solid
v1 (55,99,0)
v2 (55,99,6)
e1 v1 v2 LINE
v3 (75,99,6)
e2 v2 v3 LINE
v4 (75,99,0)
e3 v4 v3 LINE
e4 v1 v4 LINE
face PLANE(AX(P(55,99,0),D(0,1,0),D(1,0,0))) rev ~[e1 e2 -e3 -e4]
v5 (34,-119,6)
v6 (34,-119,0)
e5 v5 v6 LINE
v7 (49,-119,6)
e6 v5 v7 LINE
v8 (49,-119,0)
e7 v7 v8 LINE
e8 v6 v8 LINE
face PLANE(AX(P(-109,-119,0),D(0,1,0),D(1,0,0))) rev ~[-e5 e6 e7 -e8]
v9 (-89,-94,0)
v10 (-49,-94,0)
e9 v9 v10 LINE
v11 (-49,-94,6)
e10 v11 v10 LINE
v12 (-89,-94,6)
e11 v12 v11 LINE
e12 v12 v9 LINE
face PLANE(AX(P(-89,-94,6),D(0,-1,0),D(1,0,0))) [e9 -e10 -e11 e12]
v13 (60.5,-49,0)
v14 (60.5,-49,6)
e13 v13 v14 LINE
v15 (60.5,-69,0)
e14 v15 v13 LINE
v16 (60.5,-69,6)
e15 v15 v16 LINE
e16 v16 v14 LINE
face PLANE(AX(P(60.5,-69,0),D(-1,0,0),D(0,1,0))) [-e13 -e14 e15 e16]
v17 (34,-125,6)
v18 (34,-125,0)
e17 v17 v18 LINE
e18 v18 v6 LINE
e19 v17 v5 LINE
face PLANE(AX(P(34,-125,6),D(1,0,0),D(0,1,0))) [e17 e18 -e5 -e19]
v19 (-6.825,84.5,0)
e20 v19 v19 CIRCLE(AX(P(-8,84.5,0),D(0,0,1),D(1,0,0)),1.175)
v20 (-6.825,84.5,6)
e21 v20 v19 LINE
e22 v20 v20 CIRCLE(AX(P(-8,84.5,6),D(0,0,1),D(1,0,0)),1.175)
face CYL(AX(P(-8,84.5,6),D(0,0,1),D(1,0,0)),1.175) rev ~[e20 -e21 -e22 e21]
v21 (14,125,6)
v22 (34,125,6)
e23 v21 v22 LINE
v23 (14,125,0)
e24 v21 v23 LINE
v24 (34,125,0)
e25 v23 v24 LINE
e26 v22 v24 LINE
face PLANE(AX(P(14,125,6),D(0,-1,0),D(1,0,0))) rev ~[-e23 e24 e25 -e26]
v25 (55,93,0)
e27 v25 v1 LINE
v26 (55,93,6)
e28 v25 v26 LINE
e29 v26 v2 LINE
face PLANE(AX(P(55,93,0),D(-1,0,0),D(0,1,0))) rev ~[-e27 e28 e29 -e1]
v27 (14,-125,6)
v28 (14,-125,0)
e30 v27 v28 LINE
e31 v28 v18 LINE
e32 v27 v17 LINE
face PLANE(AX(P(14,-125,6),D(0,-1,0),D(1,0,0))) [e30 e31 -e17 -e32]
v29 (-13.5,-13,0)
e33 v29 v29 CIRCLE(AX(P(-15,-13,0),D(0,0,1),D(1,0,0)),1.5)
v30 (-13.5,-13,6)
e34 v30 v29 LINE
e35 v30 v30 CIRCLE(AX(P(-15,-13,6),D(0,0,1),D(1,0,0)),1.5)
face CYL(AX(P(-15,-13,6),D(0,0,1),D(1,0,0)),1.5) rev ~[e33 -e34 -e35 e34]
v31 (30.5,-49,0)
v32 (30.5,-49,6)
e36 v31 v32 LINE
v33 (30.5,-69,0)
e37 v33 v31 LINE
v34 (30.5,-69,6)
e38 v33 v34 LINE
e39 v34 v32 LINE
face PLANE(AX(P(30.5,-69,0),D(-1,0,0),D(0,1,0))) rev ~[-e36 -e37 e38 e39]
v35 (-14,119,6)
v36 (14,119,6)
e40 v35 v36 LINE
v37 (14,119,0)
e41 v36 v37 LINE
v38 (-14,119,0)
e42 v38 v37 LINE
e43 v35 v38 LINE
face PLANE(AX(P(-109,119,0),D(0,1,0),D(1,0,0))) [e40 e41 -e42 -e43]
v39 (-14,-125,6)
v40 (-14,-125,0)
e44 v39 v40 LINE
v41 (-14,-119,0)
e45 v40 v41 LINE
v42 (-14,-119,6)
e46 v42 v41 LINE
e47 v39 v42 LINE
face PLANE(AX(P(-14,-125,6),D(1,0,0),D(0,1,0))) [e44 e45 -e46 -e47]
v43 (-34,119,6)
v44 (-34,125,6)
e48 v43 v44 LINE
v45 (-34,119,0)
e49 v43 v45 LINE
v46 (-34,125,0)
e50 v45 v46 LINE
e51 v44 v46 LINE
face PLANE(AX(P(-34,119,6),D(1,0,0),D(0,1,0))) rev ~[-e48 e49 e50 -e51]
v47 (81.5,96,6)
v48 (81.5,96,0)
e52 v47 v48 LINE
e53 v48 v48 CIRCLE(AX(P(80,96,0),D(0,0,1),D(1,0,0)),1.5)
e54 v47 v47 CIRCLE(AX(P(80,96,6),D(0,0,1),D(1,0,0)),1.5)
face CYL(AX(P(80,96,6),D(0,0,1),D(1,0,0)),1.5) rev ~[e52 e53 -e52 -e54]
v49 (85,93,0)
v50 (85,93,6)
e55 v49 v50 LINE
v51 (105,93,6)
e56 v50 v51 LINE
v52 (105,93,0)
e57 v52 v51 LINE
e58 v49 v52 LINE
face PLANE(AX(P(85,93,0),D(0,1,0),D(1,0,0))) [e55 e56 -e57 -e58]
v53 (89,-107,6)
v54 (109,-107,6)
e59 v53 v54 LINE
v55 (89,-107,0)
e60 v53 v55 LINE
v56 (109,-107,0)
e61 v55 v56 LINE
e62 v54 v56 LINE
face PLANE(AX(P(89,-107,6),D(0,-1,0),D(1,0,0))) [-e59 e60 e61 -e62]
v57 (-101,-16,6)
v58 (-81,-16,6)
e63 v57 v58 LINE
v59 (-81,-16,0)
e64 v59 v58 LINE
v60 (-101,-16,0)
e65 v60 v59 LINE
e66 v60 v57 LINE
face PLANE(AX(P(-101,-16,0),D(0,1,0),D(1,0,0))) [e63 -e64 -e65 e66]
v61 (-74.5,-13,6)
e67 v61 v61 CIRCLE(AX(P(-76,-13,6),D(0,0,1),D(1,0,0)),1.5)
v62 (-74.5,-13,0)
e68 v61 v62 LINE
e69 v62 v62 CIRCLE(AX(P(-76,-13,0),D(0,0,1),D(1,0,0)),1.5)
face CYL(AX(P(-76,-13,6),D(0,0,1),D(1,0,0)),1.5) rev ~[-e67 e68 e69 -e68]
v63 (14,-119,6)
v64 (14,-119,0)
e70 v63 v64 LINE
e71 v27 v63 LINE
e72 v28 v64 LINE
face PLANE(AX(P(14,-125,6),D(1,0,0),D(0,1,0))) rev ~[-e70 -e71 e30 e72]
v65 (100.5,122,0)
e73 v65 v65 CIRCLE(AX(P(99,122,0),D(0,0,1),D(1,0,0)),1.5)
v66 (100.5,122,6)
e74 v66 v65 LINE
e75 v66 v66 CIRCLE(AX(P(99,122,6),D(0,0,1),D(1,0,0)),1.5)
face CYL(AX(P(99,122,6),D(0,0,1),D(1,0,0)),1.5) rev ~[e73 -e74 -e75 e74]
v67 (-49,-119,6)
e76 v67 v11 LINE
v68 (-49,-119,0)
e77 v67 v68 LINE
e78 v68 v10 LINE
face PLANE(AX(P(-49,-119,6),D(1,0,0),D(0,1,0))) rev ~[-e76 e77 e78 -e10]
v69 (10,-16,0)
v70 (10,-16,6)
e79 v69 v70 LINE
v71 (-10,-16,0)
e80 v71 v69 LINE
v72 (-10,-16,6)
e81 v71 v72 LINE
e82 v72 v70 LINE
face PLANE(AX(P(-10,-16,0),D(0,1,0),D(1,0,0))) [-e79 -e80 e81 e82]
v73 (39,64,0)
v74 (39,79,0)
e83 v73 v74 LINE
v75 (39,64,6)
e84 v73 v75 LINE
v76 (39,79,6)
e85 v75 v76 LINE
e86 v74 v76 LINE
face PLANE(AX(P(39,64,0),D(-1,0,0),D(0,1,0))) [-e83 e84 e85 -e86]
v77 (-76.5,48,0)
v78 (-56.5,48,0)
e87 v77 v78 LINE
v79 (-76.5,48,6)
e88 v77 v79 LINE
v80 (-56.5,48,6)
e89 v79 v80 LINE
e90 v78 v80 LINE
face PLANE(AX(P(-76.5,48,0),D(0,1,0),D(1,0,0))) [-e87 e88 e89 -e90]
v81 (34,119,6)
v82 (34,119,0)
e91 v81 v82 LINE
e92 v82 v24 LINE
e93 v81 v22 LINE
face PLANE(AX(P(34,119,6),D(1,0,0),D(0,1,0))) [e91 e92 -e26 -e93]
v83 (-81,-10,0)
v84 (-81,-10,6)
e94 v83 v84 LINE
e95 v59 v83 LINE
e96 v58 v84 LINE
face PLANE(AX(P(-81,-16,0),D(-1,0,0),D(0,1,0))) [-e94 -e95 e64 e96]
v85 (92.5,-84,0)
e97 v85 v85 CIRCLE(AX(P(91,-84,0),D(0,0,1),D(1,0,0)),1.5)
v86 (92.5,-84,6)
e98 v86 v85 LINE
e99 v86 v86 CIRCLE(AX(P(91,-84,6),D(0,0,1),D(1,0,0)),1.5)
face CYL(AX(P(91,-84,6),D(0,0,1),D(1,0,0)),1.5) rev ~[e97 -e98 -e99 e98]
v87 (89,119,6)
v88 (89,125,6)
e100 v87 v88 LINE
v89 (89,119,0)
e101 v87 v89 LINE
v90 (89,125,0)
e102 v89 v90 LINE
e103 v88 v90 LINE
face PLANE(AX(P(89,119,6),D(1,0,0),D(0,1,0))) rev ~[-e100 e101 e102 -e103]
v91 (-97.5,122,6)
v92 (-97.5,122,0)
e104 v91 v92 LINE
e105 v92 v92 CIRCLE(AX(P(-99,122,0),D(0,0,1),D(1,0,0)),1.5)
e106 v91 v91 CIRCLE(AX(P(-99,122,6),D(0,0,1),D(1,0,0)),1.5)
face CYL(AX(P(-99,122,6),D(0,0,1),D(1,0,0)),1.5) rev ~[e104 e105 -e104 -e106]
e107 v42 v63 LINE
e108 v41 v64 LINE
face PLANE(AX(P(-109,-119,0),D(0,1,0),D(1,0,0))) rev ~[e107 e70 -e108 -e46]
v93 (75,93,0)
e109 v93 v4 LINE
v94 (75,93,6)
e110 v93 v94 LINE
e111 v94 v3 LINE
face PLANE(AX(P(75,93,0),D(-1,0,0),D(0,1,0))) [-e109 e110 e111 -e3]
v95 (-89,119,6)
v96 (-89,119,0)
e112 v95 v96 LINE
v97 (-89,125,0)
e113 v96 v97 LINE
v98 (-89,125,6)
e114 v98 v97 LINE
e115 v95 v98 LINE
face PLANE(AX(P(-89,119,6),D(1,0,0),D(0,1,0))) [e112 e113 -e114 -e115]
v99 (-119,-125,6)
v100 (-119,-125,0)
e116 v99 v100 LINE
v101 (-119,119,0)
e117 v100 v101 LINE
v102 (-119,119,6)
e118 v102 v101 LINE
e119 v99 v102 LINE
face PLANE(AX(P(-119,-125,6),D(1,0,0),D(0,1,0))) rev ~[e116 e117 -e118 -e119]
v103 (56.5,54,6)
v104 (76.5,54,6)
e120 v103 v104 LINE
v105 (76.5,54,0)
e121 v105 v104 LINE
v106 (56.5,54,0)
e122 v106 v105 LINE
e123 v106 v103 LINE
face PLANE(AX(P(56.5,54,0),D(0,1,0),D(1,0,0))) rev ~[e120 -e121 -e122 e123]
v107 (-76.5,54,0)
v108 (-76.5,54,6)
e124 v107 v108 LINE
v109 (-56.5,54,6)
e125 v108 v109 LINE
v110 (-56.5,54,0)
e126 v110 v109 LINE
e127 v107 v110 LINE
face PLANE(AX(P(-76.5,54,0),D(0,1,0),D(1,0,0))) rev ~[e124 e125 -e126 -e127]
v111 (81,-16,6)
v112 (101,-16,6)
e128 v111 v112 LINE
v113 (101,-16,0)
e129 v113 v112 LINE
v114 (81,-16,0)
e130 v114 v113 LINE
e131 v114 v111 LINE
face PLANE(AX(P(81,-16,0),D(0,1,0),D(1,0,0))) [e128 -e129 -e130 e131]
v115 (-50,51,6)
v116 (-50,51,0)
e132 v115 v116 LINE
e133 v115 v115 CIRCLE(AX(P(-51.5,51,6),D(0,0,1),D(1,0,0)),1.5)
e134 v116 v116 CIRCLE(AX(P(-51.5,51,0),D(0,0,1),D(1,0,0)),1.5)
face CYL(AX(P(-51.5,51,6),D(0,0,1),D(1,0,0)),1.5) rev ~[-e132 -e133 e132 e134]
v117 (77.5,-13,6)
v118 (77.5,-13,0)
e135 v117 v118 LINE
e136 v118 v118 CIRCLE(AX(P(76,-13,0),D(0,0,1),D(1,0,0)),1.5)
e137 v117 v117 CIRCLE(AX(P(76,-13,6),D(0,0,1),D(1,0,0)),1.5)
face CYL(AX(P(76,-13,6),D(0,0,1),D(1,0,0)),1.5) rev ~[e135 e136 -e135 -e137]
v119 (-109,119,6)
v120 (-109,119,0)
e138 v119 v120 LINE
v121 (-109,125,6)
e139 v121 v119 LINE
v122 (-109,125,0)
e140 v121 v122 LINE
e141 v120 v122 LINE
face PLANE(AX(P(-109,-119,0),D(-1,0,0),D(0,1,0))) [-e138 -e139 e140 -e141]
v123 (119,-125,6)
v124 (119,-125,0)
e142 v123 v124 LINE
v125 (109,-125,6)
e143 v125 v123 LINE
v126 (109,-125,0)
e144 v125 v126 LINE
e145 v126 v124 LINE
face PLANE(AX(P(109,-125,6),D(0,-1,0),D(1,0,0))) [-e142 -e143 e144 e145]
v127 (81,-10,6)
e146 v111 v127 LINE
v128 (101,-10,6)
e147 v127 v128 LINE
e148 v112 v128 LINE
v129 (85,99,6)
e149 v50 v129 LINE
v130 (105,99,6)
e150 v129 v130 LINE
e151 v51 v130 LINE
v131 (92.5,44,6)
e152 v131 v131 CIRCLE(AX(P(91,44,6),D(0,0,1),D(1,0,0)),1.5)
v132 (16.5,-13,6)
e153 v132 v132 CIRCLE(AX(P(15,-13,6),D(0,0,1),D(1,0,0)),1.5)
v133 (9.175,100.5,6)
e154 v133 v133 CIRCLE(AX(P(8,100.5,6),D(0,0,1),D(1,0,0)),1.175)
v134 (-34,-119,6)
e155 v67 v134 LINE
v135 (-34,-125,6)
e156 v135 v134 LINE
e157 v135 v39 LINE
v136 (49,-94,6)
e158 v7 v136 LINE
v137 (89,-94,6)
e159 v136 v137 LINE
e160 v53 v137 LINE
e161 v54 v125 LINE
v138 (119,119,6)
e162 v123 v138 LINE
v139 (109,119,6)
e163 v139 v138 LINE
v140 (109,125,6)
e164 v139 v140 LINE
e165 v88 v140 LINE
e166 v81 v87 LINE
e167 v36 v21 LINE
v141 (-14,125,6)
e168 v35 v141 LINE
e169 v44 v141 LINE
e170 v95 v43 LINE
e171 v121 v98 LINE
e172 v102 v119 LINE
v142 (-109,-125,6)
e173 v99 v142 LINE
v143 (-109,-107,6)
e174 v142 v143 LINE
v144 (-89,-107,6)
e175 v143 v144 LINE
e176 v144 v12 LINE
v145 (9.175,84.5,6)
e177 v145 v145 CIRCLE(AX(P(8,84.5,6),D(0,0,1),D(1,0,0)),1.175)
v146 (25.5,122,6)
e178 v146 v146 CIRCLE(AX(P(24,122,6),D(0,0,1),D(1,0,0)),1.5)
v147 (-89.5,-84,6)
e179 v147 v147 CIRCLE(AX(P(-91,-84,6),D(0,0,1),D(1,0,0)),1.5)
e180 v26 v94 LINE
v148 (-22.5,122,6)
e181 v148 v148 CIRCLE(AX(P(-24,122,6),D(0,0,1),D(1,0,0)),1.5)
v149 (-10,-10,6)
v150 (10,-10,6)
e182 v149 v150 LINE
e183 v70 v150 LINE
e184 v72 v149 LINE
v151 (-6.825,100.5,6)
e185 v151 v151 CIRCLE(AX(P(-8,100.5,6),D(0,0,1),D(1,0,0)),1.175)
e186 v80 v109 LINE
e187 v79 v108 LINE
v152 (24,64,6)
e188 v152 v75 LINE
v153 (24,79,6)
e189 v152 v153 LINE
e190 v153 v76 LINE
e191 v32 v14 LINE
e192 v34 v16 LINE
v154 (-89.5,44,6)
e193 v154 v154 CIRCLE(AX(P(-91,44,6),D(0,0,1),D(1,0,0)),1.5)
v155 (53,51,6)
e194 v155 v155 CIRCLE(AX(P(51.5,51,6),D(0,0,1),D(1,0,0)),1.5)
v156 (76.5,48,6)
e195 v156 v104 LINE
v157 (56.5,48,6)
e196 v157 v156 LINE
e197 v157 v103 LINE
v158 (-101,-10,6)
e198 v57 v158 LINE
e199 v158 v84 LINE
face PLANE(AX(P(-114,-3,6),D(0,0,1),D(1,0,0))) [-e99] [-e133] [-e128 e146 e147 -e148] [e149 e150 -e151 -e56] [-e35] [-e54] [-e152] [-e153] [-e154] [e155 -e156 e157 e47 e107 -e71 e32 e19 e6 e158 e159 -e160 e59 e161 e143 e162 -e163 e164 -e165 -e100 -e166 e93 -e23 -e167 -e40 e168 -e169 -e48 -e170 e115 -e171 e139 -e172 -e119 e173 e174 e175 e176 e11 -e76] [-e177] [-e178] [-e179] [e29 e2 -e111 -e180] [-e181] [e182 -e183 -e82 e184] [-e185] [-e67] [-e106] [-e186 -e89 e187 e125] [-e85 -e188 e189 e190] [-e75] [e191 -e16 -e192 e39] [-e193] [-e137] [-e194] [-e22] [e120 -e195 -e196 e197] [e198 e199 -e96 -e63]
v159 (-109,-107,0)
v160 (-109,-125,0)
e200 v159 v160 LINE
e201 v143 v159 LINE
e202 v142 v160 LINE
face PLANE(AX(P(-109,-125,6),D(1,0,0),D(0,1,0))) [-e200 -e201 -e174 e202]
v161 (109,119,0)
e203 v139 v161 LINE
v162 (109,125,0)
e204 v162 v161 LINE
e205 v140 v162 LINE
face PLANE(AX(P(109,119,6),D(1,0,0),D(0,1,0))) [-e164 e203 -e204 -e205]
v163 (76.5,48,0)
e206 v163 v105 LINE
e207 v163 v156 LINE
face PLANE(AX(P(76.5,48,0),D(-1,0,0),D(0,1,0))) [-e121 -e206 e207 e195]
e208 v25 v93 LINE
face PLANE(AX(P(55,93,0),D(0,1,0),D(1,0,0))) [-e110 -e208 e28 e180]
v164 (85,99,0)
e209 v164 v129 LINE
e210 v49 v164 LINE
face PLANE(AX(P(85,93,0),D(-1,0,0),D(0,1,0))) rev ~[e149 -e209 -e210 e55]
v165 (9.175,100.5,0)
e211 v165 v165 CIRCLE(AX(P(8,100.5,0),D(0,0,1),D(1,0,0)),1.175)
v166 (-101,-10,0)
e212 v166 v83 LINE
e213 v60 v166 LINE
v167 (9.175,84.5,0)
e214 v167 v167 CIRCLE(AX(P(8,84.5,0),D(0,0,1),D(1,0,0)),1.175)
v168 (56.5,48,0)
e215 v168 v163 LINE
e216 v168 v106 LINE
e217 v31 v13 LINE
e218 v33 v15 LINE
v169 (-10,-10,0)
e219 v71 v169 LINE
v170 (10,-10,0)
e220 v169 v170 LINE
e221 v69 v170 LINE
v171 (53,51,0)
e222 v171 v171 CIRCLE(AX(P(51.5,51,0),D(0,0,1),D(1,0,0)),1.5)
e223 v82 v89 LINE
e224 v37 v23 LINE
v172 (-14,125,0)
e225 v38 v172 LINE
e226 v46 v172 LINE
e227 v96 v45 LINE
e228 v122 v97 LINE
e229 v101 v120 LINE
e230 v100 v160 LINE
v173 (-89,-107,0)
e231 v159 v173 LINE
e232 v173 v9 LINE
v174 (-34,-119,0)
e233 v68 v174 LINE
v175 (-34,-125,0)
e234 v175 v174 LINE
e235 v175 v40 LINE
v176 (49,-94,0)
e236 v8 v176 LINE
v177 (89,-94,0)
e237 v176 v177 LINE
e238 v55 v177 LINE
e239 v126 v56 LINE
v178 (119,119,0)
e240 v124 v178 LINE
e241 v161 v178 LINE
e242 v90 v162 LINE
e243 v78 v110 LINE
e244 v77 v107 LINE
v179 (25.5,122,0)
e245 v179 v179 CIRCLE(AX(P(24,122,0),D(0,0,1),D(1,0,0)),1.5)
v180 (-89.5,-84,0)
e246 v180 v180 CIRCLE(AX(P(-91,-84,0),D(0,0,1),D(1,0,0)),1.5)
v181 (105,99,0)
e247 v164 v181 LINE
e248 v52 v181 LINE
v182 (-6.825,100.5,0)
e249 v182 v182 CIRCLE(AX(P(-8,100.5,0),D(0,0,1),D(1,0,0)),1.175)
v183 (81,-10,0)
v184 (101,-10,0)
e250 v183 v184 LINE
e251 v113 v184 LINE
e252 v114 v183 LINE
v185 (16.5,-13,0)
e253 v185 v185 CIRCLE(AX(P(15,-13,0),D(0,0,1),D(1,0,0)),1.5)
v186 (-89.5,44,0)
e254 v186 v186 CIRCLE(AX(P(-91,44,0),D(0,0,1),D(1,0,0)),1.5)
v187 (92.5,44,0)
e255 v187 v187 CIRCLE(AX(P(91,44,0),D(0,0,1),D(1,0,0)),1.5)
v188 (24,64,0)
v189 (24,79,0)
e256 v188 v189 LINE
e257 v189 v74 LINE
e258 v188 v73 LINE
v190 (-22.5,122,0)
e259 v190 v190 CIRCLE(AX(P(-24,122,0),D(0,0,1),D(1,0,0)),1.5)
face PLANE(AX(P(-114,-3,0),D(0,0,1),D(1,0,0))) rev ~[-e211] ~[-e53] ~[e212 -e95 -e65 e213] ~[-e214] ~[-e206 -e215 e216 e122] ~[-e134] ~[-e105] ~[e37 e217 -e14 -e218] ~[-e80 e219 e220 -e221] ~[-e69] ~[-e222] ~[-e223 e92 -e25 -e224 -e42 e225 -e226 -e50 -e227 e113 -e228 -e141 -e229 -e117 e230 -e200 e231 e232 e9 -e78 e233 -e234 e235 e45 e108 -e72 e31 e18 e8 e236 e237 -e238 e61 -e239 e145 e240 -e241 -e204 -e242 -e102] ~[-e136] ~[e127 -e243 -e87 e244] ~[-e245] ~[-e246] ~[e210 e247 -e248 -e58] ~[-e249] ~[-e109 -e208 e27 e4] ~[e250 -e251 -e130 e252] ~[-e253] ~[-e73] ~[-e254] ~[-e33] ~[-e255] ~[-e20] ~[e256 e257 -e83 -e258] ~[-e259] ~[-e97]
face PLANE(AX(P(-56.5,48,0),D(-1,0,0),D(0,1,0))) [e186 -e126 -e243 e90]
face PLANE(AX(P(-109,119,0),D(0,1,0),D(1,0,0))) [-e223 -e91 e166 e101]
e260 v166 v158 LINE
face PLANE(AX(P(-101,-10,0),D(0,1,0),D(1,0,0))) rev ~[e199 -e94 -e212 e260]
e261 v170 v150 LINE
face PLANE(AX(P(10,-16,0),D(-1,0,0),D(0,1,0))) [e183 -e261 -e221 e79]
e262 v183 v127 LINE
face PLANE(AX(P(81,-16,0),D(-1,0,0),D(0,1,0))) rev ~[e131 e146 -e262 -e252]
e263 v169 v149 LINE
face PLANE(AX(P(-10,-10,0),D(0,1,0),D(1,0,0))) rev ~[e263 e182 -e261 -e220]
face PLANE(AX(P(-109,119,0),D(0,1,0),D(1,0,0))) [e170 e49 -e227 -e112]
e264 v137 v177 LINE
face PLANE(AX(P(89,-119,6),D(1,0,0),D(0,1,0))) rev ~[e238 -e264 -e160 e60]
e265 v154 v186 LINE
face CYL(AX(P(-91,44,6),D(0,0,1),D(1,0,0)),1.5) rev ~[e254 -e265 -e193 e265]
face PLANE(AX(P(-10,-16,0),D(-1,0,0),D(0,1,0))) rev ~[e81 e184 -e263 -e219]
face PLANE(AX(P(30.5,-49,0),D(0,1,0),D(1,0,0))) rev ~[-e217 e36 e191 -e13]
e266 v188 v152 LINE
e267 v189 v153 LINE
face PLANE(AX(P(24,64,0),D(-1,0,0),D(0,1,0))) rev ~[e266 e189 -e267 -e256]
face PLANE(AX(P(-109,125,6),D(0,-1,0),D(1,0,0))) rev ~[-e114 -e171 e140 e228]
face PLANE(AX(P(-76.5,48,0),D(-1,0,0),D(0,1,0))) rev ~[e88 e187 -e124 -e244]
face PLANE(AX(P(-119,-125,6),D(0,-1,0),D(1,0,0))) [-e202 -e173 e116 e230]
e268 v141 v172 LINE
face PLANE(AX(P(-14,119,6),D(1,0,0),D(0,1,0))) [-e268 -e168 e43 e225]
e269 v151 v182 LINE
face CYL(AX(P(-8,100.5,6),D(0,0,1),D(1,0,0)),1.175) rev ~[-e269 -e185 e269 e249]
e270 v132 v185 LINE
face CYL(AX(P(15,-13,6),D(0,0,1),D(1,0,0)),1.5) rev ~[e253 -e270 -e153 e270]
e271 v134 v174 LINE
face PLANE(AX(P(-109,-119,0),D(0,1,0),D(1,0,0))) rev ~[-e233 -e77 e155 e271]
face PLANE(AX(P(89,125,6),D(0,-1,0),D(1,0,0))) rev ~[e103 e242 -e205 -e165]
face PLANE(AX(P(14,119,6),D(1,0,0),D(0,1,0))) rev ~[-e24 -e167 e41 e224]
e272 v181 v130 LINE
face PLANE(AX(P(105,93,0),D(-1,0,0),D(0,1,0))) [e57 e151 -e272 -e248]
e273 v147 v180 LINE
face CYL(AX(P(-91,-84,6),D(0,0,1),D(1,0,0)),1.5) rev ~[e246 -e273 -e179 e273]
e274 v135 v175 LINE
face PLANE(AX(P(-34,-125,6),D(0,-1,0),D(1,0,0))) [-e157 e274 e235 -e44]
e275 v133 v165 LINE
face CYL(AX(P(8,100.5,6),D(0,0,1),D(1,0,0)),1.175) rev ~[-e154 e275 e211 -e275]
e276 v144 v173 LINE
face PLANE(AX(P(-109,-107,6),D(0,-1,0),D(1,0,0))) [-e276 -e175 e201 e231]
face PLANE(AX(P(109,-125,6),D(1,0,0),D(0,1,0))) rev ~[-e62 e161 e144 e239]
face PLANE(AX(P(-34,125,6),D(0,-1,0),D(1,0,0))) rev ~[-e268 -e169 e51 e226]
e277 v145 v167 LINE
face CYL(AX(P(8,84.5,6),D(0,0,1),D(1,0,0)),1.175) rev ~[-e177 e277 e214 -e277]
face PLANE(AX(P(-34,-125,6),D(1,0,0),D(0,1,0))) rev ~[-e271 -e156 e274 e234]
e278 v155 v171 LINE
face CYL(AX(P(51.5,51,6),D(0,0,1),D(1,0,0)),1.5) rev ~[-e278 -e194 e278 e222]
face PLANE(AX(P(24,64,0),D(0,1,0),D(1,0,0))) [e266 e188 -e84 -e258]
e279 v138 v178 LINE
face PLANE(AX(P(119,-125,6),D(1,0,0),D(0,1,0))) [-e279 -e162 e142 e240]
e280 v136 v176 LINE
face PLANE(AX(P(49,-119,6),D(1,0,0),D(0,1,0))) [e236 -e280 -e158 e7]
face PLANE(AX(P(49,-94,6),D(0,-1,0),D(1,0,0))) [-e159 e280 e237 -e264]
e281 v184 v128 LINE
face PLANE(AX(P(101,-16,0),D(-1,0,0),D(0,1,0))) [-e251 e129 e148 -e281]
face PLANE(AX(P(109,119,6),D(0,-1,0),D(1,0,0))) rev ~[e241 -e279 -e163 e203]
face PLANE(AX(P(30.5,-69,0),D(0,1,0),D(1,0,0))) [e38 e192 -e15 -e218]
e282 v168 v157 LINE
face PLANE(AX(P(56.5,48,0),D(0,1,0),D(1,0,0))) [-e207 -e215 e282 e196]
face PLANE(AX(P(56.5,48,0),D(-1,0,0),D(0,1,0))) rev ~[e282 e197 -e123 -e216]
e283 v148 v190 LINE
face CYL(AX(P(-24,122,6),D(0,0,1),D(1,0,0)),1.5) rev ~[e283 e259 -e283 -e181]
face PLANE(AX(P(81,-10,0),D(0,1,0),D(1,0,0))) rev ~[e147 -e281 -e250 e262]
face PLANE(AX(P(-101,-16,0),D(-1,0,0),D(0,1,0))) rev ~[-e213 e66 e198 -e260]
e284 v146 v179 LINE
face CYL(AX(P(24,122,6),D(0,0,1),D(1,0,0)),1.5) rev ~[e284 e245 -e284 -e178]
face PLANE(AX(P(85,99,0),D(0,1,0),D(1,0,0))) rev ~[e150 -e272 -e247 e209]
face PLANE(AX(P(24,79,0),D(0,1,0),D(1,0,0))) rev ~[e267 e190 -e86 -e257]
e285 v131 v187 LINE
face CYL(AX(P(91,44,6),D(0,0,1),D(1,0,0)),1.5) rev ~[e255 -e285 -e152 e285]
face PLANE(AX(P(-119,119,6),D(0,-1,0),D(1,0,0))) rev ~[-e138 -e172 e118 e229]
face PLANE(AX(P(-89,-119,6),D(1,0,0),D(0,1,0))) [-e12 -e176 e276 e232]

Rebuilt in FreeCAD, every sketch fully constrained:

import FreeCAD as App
import Part
import Sketcher

V = App.Vector

doc = App.newDocument("Part")
body = doc.addObject("PartDesign::Body", "Body")

sketch1 = body.newObject("Sketcher::SketchObject", "Sketch")
sketch1.AttachmentSupport = (doc.getObject("XY_Plane"), [""])
sketch1.MapMode = "FlatFace"
sketch1.addGeometry(Part.LineSegment(V(-109, 119, 0), V(-109, -119, 0)), False)
sketch1.addGeometry(Part.LineSegment(V(-109, -119, 0), V(109, -119, 0)), False)
sketch1.addGeometry(Part.LineSegment(V(109, -119, 0), V(109, 119, 0)), False)
sketch1.addGeometry(Part.LineSegment(V(109, 119, 0), V(-109, 119, 0)), False)
sketch1.addGeometry(Part.LineSegment(V(-81, -16, 0), V(-101, -16, 0)), False)
sketch1.addGeometry(Part.LineSegment(V(-101, -16, 0), V(-101, -10, 0)), False)
sketch1.addGeometry(Part.LineSegment(V(-101, -10, 0), V(-81, -10, 0)), False)
sketch1.addGeometry(Part.LineSegment(V(-81, -10, 0), V(-81, -16, 0)), False)
sketch1.addGeometry(Part.LineSegment(V(10, -16, 0), V(-10, -16, 0)), False)
sketch1.addGeometry(Part.LineSegment(V(-10, -16, 0), V(-10, -10, 0)), False)
sketch1.addGeometry(Part.LineSegment(V(-10, -10, 0), V(10, -10, 0)), False)
sketch1.addGeometry(Part.LineSegment(V(10, -10, 0), V(10, -16, 0)), False)
sketch1.addGeometry(Part.LineSegment(V(60, -69, 0), V(30, -69, 0)), False)
sketch1.addGeometry(Part.LineSegment(V(30, -69, 0), V(30, -49, 0)), False)
sketch1.addGeometry(Part.LineSegment(V(30, -49, 0), V(60, -49, 0)), False)
sketch1.addGeometry(Part.LineSegment(V(60, -49, 0), V(60, -69, 0)), False)
sketch1.addGeometry(Part.LineSegment(V(101, -16, 0), V(81, -16, 0)), False)
sketch1.addGeometry(Part.LineSegment(V(81, -16, 0), V(81, -10, 0)), False)
sketch1.addGeometry(Part.LineSegment(V(81, -10, 0), V(101, -10, 0)), False)
sketch1.addGeometry(Part.LineSegment(V(101, -10, 0), V(101, -16, 0)), False)
sketch1.addGeometry(Part.LineSegment(V(-56, 48, 0), V(-76, 48, 0)), False)
sketch1.addGeometry(Part.LineSegment(V(-76, 48, 0), V(-76, 54, 0)), False)
sketch1.addGeometry(Part.LineSegment(V(-76, 54, 0), V(-56, 54, 0)), False)
sketch1.addGeometry(Part.LineSegment(V(-56, 54, 0), V(-56, 48, 0)), False)
sketch1.addGeometry(Part.LineSegment(V(76, 48, 0), V(56, 48, 0)), False)
sketch1.addGeometry(Part.LineSegment(V(56, 48, 0), V(56, 54, 0)), False)
sketch1.addGeometry(Part.LineSegment(V(56, 54, 0), V(76, 54, 0)), False)
sketch1.addGeometry(Part.LineSegment(V(76, 54, 0), V(76, 48, 0)), False)
sketch1.addGeometry(Part.LineSegment(V(39, 64, 0), V(24, 64, 0)), False)
sketch1.addGeometry(Part.LineSegment(V(24, 64, 0), V(24, 79, 0)), False)
sketch1.addGeometry(Part.LineSegment(V(24, 79, 0), V(39, 79, 0)), False)
sketch1.addGeometry(Part.LineSegment(V(39, 79, 0), V(39, 64, 0)), False)
sketch1.addGeometry(Part.LineSegment(V(75, 93, 0), V(55, 93, 0)), False)
sketch1.addGeometry(Part.LineSegment(V(55, 93, 0), V(55, 99, 0)), False)
sketch1.addGeometry(Part.LineSegment(V(55, 99, 0), V(75, 99, 0)), False)
sketch1.addGeometry(Part.LineSegment(V(75, 99, 0), V(75, 93, 0)), False)
sketch1.addGeometry(Part.LineSegment(V(105, 93, 0), V(85, 93, 0)), False)
sketch1.addGeometry(Part.LineSegment(V(85, 93, 0), V(85, 99, 0)), False)
sketch1.addGeometry(Part.LineSegment(V(85, 99, 0), V(105, 99, 0)), False)
sketch1.addGeometry(Part.LineSegment(V(105, 99, 0), V(105, 93, 0)), False)
sketch1.addConstraint(Sketcher.Constraint("Coincident", 0, 2, 1, 1))
sketch1.addConstraint(Sketcher.Constraint("Coincident", 1, 2, 2, 1))
sketch1.addConstraint(Sketcher.Constraint("Coincident", 2, 2, 3, 1))
sketch1.addConstraint(Sketcher.Constraint("Coincident", 3, 2, 0, 1))
sketch1.addConstraint(Sketcher.Constraint("Coincident", 4, 2, 5, 1))
sketch1.addConstraint(Sketcher.Constraint("Coincident", 5, 2, 6, 1))
sketch1.addConstraint(Sketcher.Constraint("Coincident", 6, 2, 7, 1))
sketch1.addConstraint(Sketcher.Constraint("Coincident", 7, 2, 4, 1))
sketch1.addConstraint(Sketcher.Constraint("Coincident", 8, 2, 9, 1))
sketch1.addConstraint(Sketcher.Constraint("Coincident", 9, 2, 10, 1))
sketch1.addConstraint(Sketcher.Constraint("Coincident", 10, 2, 11, 1))
sketch1.addConstraint(Sketcher.Constraint("Coincident", 11, 2, 8, 1))
sketch1.addConstraint(Sketcher.Constraint("Coincident", 12, 2, 13, 1))
sketch1.addConstraint(Sketcher.Constraint("Coincident", 13, 2, 14, 1))
sketch1.addConstraint(Sketcher.Constraint("Coincident", 14, 2, 15, 1))
sketch1.addConstraint(Sketcher.Constraint("Coincident", 15, 2, 12, 1))
sketch1.addConstraint(Sketcher.Constraint("Coincident", 16, 2, 17, 1))
sketch1.addConstraint(Sketcher.Constraint("Coincident", 17, 2, 18, 1))
sketch1.addConstraint(Sketcher.Constraint("Coincident", 18, 2, 19, 1))
sketch1.addConstraint(Sketcher.Constraint("Coincident", 19, 2, 16, 1))
sketch1.addConstraint(Sketcher.Constraint("Coincident", 20, 2, 21, 1))
sketch1.addConstraint(Sketcher.Constraint("Coincident", 21, 2, 22, 1))
sketch1.addConstraint(Sketcher.Constraint("Coincident", 22, 2, 23, 1))
sketch1.addConstraint(Sketcher.Constraint("Coincident", 23, 2, 20, 1))
sketch1.addConstraint(Sketcher.Constraint("Coincident", 24, 2, 25, 1))
sketch1.addConstraint(Sketcher.Constraint("Coincident", 25, 2, 26, 1))
sketch1.addConstraint(Sketcher.Constraint("Coincident", 26, 2, 27, 1))
sketch1.addConstraint(Sketcher.Constraint("Coincident", 27, 2, 24, 1))
sketch1.addConstraint(Sketcher.Constraint("Coincident", 28, 2, 29, 1))
sketch1.addConstraint(Sketcher.Constraint("Coincident", 29, 2, 30, 1))
sketch1.addConstraint(Sketcher.Constraint("Coincident", 30, 2, 31, 1))
sketch1.addConstraint(Sketcher.Constraint("Coincident", 31, 2, 28, 1))
sketch1.addConstraint(Sketcher.Constraint("Coincident", 32, 2, 33, 1))
sketch1.addConstraint(Sketcher.Constraint("Coincident", 33, 2, 34, 1))
sketch1.addConstraint(Sketcher.Constraint("Coincident", 34, 2, 35, 1))
sketch1.addConstraint(Sketcher.Constraint("Coincident", 35, 2, 32, 1))
sketch1.addConstraint(Sketcher.Constraint("Coincident", 36, 2, 37, 1))
sketch1.addConstraint(Sketcher.Constraint("Coincident", 37, 2, 38, 1))
sketch1.addConstraint(Sketcher.Constraint("Coincident", 38, 2, 39, 1))
sketch1.addConstraint(Sketcher.Constraint("Coincident", 39, 2, 36, 1))
sketch1.addConstraint(Sketcher.Constraint("Vertical", 0))
sketch1.addConstraint(Sketcher.Constraint("Horizontal", 1))
sketch1.addConstraint(Sketcher.Constraint("Vertical", 2))
sketch1.addConstraint(Sketcher.Constraint("Horizontal", 3))
sketch1.addConstraint(Sketcher.Constraint("Horizontal", 4))
sketch1.addConstraint(Sketcher.Constraint("Vertical", 5))
sketch1.addConstraint(Sketcher.Constraint("Horizontal", 6))
sketch1.addConstraint(Sketcher.Constraint("Vertical", 7))
sketch1.addConstraint(Sketcher.Constraint("Horizontal", 8))
sketch1.addConstraint(Sketcher.Constraint("Vertical", 9))
sketch1.addConstraint(Sketcher.Constraint("Horizontal", 10))
sketch1.addConstraint(Sketcher.Constraint("Vertical", 11))
sketch1.addConstraint(Sketcher.Constraint("Horizontal", 12))
sketch1.addConstraint(Sketcher.Constraint("Vertical", 13))
sketch1.addConstraint(Sketcher.Constraint("Horizontal", 14))
sketch1.addConstraint(Sketcher.Constraint("Vertical", 15))
sketch1.addConstraint(Sketcher.Constraint("Horizontal", 16))
sketch1.addConstraint(Sketcher.Constraint("Vertical", 17))
sketch1.addConstraint(Sketcher.Constraint("Horizontal", 18))
sketch1.addConstraint(Sketcher.Constraint("Vertical", 19))
sketch1.addConstraint(Sketcher.Constraint("Horizontal", 20))
sketch1.addConstraint(Sketcher.Constraint("Vertical", 21))
sketch1.addConstraint(Sketcher.Constraint("Horizontal", 22))
sketch1.addConstraint(Sketcher.Constraint("Vertical", 23))
sketch1.addConstraint(Sketcher.Constraint("Horizontal", 24))
sketch1.addConstraint(Sketcher.Constraint("Vertical", 25))
sketch1.addConstraint(Sketcher.Constraint("Horizontal", 26))
sketch1.addConstraint(Sketcher.Constraint("Vertical", 27))
sketch1.addConstraint(Sketcher.Constraint("Horizontal", 28))
sketch1.addConstraint(Sketcher.Constraint("Vertical", 29))
sketch1.addConstraint(Sketcher.Constraint("Horizontal", 30))
sketch1.addConstraint(Sketcher.Constraint("Vertical", 31))
sketch1.addConstraint(Sketcher.Constraint("Horizontal", 32))
sketch1.addConstraint(Sketcher.Constraint("Vertical", 33))
sketch1.addConstraint(Sketcher.Constraint("Horizontal", 34))
sketch1.addConstraint(Sketcher.Constraint("Vertical", 35))
sketch1.addConstraint(Sketcher.Constraint("Horizontal", 36))
sketch1.addConstraint(Sketcher.Constraint("Vertical", 37))
sketch1.addConstraint(Sketcher.Constraint("Horizontal", 38))
sketch1.addConstraint(Sketcher.Constraint("Vertical", 39))
sketch1.addConstraint(Sketcher.Constraint("Symmetric", 0, 2, 2, 2, -1, 1))
sketch1.addConstraint(Sketcher.Constraint("Symmetric", 7, 2, 16, 2, -2))
sketch1.addConstraint(Sketcher.Constraint("Symmetric", 5, 2, 18, 2, -2))
sketch1.addConstraint(Sketcher.Constraint("Symmetric", 23, 2, 24, 2, -2))
sketch1.addConstraint(Sketcher.Constraint("Symmetric", 21, 2, 26, 2, -2))
sketch1.addConstraint(Sketcher.Constraint("Horizontal", 7, 2, 8, 2))
sketch1.addConstraint(Sketcher.Constraint("Horizontal", 6, 2, 9, 2))
sketch1.addConstraint(Sketcher.Constraint("Horizontal", 35, 2, 36, 2))
sketch1.addConstraint(Sketcher.Constraint("Horizontal", 34, 2, 37, 2))
sketch1.addConstraint(Sketcher.Constraint("Equal", 6, 8))
sketch1.addConstraint(Sketcher.Constraint("Equal", 18, 20))
sketch1.addConstraint(Sketcher.Constraint("Equal", 26, 32))
sketch1.addConstraint(Sketcher.Constraint("Equal", 34, 36))
sketch1.addConstraint(Sketcher.Constraint("Equal", 38, 13))
sketch1.addConstraint(Sketcher.Constraint("Equal", 19, 21))
sketch1.addConstraint(Sketcher.Constraint("Equal", 30, 29))
sketch1.addConstraint(Sketcher.Constraint("Equal", 27, 33))
sketch1.addConstraint(Sketcher.Constraint("DistanceX", 1, 1, 1, 2, 218.0))
sketch1.addConstraint(Sketcher.Constraint("DistanceX", 4, 2, 4, 1, 20.0))
sketch1.addConstraint(Sketcher.Constraint("DistanceX", 12, 2, 12, 1, 30.0))
sketch1.addConstraint(Sketcher.Constraint("DistanceX", 28, 2, 28, 1, 15.0))
sketch1.addConstraint(Sketcher.Constraint("DistanceY", 0, 2, 0, 1, 238.0))
sketch1.addConstraint(Sketcher.Constraint("DistanceY", 5, 1, 5, 2, 6.0))
sketch1.addConstraint(Sketcher.Constraint("DistanceX", 4, 2, -1, 1, 101.0))
sketch1.addConstraint(Sketcher.Constraint("DistanceY", 4, 2, -1, 1, 16.0))
sketch1.addConstraint(Sketcher.Constraint("DistanceX", 8, 2, -1, 1, 10.0))
sketch1.addConstraint(Sketcher.Constraint("DistanceY", 12, 2, -1, 1, 69.0))
sketch1.addConstraint(Sketcher.Constraint("DistanceY", -1, 1, 20, 2, 48.0))
sketch1.addConstraint(Sketcher.Constraint("DistanceX", -1, 1, 28, 2, 24.0))
sketch1.addConstraint(Sketcher.Constraint("DistanceY", -1, 1, 28, 2, 64.0))
sketch1.addConstraint(Sketcher.Constraint("DistanceX", -1, 1, 32, 2, 55.0))
sketch1.addConstraint(Sketcher.Constraint("DistanceY", -1, 1, 32, 2, 93.0))
sketch1.addConstraint(Sketcher.Constraint("DistanceX", -1, 1, 36, 2, 85.0))
sketch1.addConstraint(Sketcher.Constraint("DistanceX", -1, 1, 12, 2, 30.5))
sketch1.addConstraint(Sketcher.Constraint("DistanceX", 20, 2, -1, 1, 76.5))
pad1 = body.newObject("PartDesign::Pad", "Pad")
pad1.Profile = sketch1
pad1.Length = 6

sketch2 = body.newObject("Sketcher::SketchObject", "Sketch001")
sketch2.AttachmentSupport = (doc.getObject("XY_Plane"), [""])
sketch2.MapMode = "FlatFace"
sketch2.AttachmentOffset = App.Placement(V(0, 0, 6), App.Rotation())
sketch2.addGeometry(Part.LineSegment(V(-89, -94, 0), V(-89, -119, 0)), False)
sketch2.addGeometry(Part.LineSegment(V(-89, -119, 0), V(-49, -119, 0)), False)
sketch2.addGeometry(Part.LineSegment(V(-49, -119, 0), V(-49, -94, 0)), False)
sketch2.addGeometry(Part.LineSegment(V(-49, -94, 0), V(-89, -94, 0)), False)
sketch2.addGeometry(Part.LineSegment(V(49, -94, 0), V(49, -119, 0)), False)
sketch2.addGeometry(Part.LineSegment(V(49, -119, 0), V(89, -119, 0)), False)
sketch2.addGeometry(Part.LineSegment(V(89, -119, 0), V(89, -94, 0)), False)
sketch2.addGeometry(Part.LineSegment(V(89, -94, 0), V(49, -94, 0)), False)
sketch2.addConstraint(Sketcher.Constraint("Coincident", 0, 2, 1, 1))
sketch2.addConstraint(Sketcher.Constraint("Coincident", 1, 2, 2, 1))
sketch2.addConstraint(Sketcher.Constraint("Coincident", 2, 2, 3, 1))
sketch2.addConstraint(Sketcher.Constraint("Coincident", 3, 2, 0, 1))
sketch2.addConstraint(Sketcher.Constraint("Coincident", 4, 2, 5, 1))
sketch2.addConstraint(Sketcher.Constraint("Coincident", 5, 2, 6, 1))
sketch2.addConstraint(Sketcher.Constraint("Coincident", 6, 2, 7, 1))
sketch2.addConstraint(Sketcher.Constraint("Coincident", 7, 2, 4, 1))
sketch2.addConstraint(Sketcher.Constraint("Vertical", 0))
sketch2.addConstraint(Sketcher.Constraint("Horizontal", 1))
sketch2.addConstraint(Sketcher.Constraint("Vertical", 2))
sketch2.addConstraint(Sketcher.Constraint("Horizontal", 3))
sketch2.addConstraint(Sketcher.Constraint("Vertical", 4))
sketch2.addConstraint(Sketcher.Constraint("Horizontal", 5))
sketch2.addConstraint(Sketcher.Constraint("Vertical", 6))
sketch2.addConstraint(Sketcher.Constraint("Horizontal", 7))
sketch2.addConstraint(Sketcher.Constraint("Symmetric", 1, 2, 4, 2, -2))
sketch2.addConstraint(Sketcher.Constraint("Symmetric", 3, 2, 6, 2, -2))
sketch2.addConstraint(Sketcher.Constraint("DistanceX", 1, 1, 1, 2, 40.0))
sketch2.addConstraint(Sketcher.Constraint("DistanceY", 0, 2, 0, 1, 25.0))
sketch2.addConstraint(Sketcher.Constraint("DistanceX", 0, 2, -1, 1, 89.0))
sketch2.addConstraint(Sketcher.Constraint("DistanceY", 0, 2, -1, 1, 119.0))
pocket1 = body.newObject("PartDesign::Pocket", "Pocket")
pocket1.Profile = sketch2
pocket1.Length = 6

sketch3 = body.newObject("Sketcher::SketchObject", "Sketch002")
sketch3.AttachmentSupport = (doc.getObject("XY_Plane"), [""])
sketch3.MapMode = "FlatFace"
sketch3.AttachmentOffset = App.Placement(V(0, 0, 6), App.Rotation())
sketch3.addGeometry(Part.LineSegment(V(-34, -119, 0), V(-34, -125, 0)), False)
sketch3.addGeometry(Part.LineSegment(V(-34, -125, 0), V(-14, -125, 0)), False)
sketch3.addGeometry(Part.LineSegment(V(-14, -125, 0), V(-14, -119, 0)), False)
sketch3.addGeometry(Part.LineSegment(V(-14, -119, 0), V(-34, -119, 0)), False)
sketch3.addGeometry(Part.LineSegment(V(14, -119, 0), V(14, -125, 0)), False)
sketch3.addGeometry(Part.LineSegment(V(14, -125, 0), V(34, -125, 0)), False)
sketch3.addGeometry(Part.LineSegment(V(34, -125, 0), V(34, -119, 0)), False)
sketch3.addGeometry(Part.LineSegment(V(34, -119, 0), V(14, -119, 0)), False)
sketch3.addGeometry(Part.LineSegment(V(14, 125, 0), V(14, 119, 0)), False)
sketch3.addGeometry(Part.LineSegment(V(14, 119, 0), V(34, 119, 0)), False)
sketch3.addGeometry(Part.LineSegment(V(34, 119, 0), V(34, 125, 0)), False)
sketch3.addGeometry(Part.LineSegment(V(34, 125, 0), V(14, 125, 0)), False)
sketch3.addGeometry(Part.LineSegment(V(89, 125, 0), V(89, 119, 0)), False)
sketch3.addGeometry(Part.LineSegment(V(89, 119, 0), V(109, 119, 0)), False)
sketch3.addGeometry(Part.LineSegment(V(109, 119, 0), V(109, 125, 0)), False)
sketch3.addGeometry(Part.LineSegment(V(109, 125, 0), V(89, 125, 0)), False)
sketch3.addGeometry(Part.LineSegment(V(-34, 125, 0), V(-34, 119, 0)), False)
sketch3.addGeometry(Part.LineSegment(V(-34, 119, 0), V(-14, 119, 0)), False)
sketch3.addGeometry(Part.LineSegment(V(-14, 119, 0), V(-14, 125, 0)), False)
sketch3.addGeometry(Part.LineSegment(V(-14, 125, 0), V(-34, 125, 0)), False)
sketch3.addGeometry(Part.LineSegment(V(-109, 125, 0), V(-109, 119, 0)), False)
sketch3.addGeometry(Part.LineSegment(V(-109, 119, 0), V(-89, 119, 0)), False)
sketch3.addGeometry(Part.LineSegment(V(-89, 119, 0), V(-89, 125, 0)), False)
sketch3.addGeometry(Part.LineSegment(V(-89, 125, 0), V(-109, 125, 0)), False)
sketch3.addConstraint(Sketcher.Constraint("Coincident", 0, 2, 1, 1))
sketch3.addConstraint(Sketcher.Constraint("Coincident", 1, 2, 2, 1))
sketch3.addConstraint(Sketcher.Constraint("Coincident", 2, 2, 3, 1))
sketch3.addConstraint(Sketcher.Constraint("Coincident", 3, 2, 0, 1))
sketch3.addConstraint(Sketcher.Constraint("Coincident", 4, 2, 5, 1))
sketch3.addConstraint(Sketcher.Constraint("Coincident", 5, 2, 6, 1))
sketch3.addConstraint(Sketcher.Constraint("Coincident", 6, 2, 7, 1))
sketch3.addConstraint(Sketcher.Constraint("Coincident", 7, 2, 4, 1))
sketch3.addConstraint(Sketcher.Constraint("Coincident", 8, 2, 9, 1))
sketch3.addConstraint(Sketcher.Constraint("Coincident", 9, 2, 10, 1))
sketch3.addConstraint(Sketcher.Constraint("Coincident", 10, 2, 11, 1))
sketch3.addConstraint(Sketcher.Constraint("Coincident", 11, 2, 8, 1))
sketch3.addConstraint(Sketcher.Constraint("Coincident", 12, 2, 13, 1))
sketch3.addConstraint(Sketcher.Constraint("Coincident", 13, 2, 14, 1))
sketch3.addConstraint(Sketcher.Constraint("Coincident", 14, 2, 15, 1))
sketch3.addConstraint(Sketcher.Constraint("Coincident", 15, 2, 12, 1))
sketch3.addConstraint(Sketcher.Constraint("Coincident", 16, 2, 17, 1))
sketch3.addConstraint(Sketcher.Constraint("Coincident", 17, 2, 18, 1))
sketch3.addConstraint(Sketcher.Constraint("Coincident", 18, 2, 19, 1))
sketch3.addConstraint(Sketcher.Constraint("Coincident", 19, 2, 16, 1))
sketch3.addConstraint(Sketcher.Constraint("Coincident", 20, 2, 21, 1))
sketch3.addConstraint(Sketcher.Constraint("Coincident", 21, 2, 22, 1))
sketch3.addConstraint(Sketcher.Constraint("Coincident", 22, 2, 23, 1))
sketch3.addConstraint(Sketcher.Constraint("Coincident", 23, 2, 20, 1))
sketch3.addConstraint(Sketcher.Constraint("Vertical", 0))
sketch3.addConstraint(Sketcher.Constraint("Horizontal", 1))
sketch3.addConstraint(Sketcher.Constraint("Vertical", 2))
sketch3.addConstraint(Sketcher.Constraint("Horizontal", 3))
sketch3.addConstraint(Sketcher.Constraint("Vertical", 4))
sketch3.addConstraint(Sketcher.Constraint("Horizontal", 5))
sketch3.addConstraint(Sketcher.Constraint("Vertical", 6))
sketch3.addConstraint(Sketcher.Constraint("Horizontal", 7))
sketch3.addConstraint(Sketcher.Constraint("Vertical", 8))
sketch3.addConstraint(Sketcher.Constraint("Horizontal", 9))
sketch3.addConstraint(Sketcher.Constraint("Vertical", 10))
sketch3.addConstraint(Sketcher.Constraint("Horizontal", 11))
sketch3.addConstraint(Sketcher.Constraint("Vertical", 12))
sketch3.addConstraint(Sketcher.Constraint("Horizontal", 13))
sketch3.addConstraint(Sketcher.Constraint("Vertical", 14))
sketch3.addConstraint(Sketcher.Constraint("Horizontal", 15))
sketch3.addConstraint(Sketcher.Constraint("Vertical", 16))
sketch3.addConstraint(Sketcher.Constraint("Horizontal", 17))
sketch3.addConstraint(Sketcher.Constraint("Vertical", 18))
sketch3.addConstraint(Sketcher.Constraint("Horizontal", 19))
sketch3.addConstraint(Sketcher.Constraint("Vertical", 20))
sketch3.addConstraint(Sketcher.Constraint("Horizontal", 21))
sketch3.addConstraint(Sketcher.Constraint("Vertical", 22))
sketch3.addConstraint(Sketcher.Constraint("Horizontal", 23))
sketch3.addConstraint(Sketcher.Constraint("Symmetric", 2, 2, 8, 2, -1, 1))
sketch3.addConstraint(Sketcher.Constraint("Symmetric", 0, 2, 10, 2, -1, 1))
sketch3.addConstraint(Sketcher.Constraint("Symmetric", 6, 2, 16, 2, -1, 1))
sketch3.addConstraint(Sketcher.Constraint("Symmetric", 4, 2, 18, 2, -1, 1))
sketch3.addConstraint(Sketcher.Constraint("Symmetric", 1, 2, 4, 2, -2))
sketch3.addConstraint(Sketcher.Constraint("Symmetric", 3, 2, 6, 2, -2))
sketch3.addConstraint(Sketcher.Constraint("Symmetric", 13, 2, 20, 2, -2))
sketch3.addConstraint(Sketcher.Constraint("Symmetric", 15, 2, 22, 2, -2))
sketch3.addConstraint(Sketcher.Constraint("Horizontal", 9, 2, 12, 2))
sketch3.addConstraint(Sketcher.Constraint("Horizontal", 11, 2, 14, 2))
sketch3.addConstraint(Sketcher.Constraint("Equal", 11, 13))
sketch3.addConstraint(Sketcher.Constraint("DistanceX", 1, 1, 1, 2, 20.0))
sketch3.addConstraint(Sketcher.Constraint("DistanceY", 0, 2, 0, 1, 6.0))
sketch3.addConstraint(Sketcher.Constraint("DistanceX", 0, 2, -1, 1, 34.0))
sketch3.addConstraint(Sketcher.Constraint("DistanceY", 0, 2, -1, 1, 125.0))
sketch3.addConstraint(Sketcher.Constraint("DistanceX", -1, 1, 12, 2, 89.0))
pad2 = body.newObject("PartDesign::Pad", "Pad001")
pad2.Profile = sketch3
pad2.Length = 6
pad2.Reversed = True

sketch4 = body.newObject("Sketcher::SketchObject", "Sketch003")
sketch4.AttachmentSupport = (doc.getObject("XY_Plane"), [""])
sketch4.MapMode = "FlatFace"
sketch4.AttachmentOffset = App.Placement(V(0, 0, 6), App.Rotation())
sketch4.addGeometry(Part.Circle(V(-15, -13, 0), V(0, 0, 1), 1.5), False)
sketch4.addGeometry(Part.Circle(V(-76, -13, 0), V(0, 0, 1), 1.5), False)
sketch4.addGeometry(Part.Circle(V(80, 96, 0), V(0, 0, 1), 1.5), False)
sketch4.addGeometry(Part.Circle(V(51.5, 51, 0), V(0, 0, 1), 1.5), False)
sketch4.addGeometry(Part.Circle(V(76, -13, 0), V(0, 0, 1), 1.5), False)
sketch4.addGeometry(Part.Circle(V(15, -13, 0), V(0, 0, 1), 1.5), False)
sketch4.addGeometry(Part.Circle(V(-51.5, 51, 0), V(0, 0, 1), 1.5), False)
sketch4.addGeometry(Part.Circle(V(-99, 122, 0), V(0, 0, 1), 1.5), False)
sketch4.addGeometry(Part.Circle(V(-24, 122, 0), V(0, 0, 1), 1.5), False)
sketch4.addGeometry(Part.Circle(V(24, 122, 0), V(0, 0, 1), 1.5), False)
sketch4.addGeometry(Part.Circle(V(99, 122, 0), V(0, 0, 1), 1.5), False)
sketch4.addGeometry(Part.Circle(V(-91, -84, 0), V(0, 0, 1), 1.5), False)
sketch4.addGeometry(Part.Circle(V(-91, 44, 0), V(0, 0, 1), 1.5), False)
sketch4.addGeometry(Part.Circle(V(91, -84, 0), V(0, 0, 1), 1.5), False)
sketch4.addGeometry(Part.Circle(V(91, 44, 0), V(0, 0, 1), 1.5), False)
sketch4.addConstraint(Sketcher.Constraint("Equal", 0, 1))
sketch4.addConstraint(Sketcher.Constraint("Equal", 1, 2))
sketch4.addConstraint(Sketcher.Constraint("Equal", 2, 3))
sketch4.addConstraint(Sketcher.Constraint("Equal", 3, 4))
sketch4.addConstraint(Sketcher.Constraint("Equal", 4, 5))
sketch4.addConstraint(Sketcher.Constraint("Equal", 5, 6))
sketch4.addConstraint(Sketcher.Constraint("Equal", 6, 7))
sketch4.addConstraint(Sketcher.Constraint("Equal", 7, 8))
sketch4.addConstraint(Sketcher.Constraint("Equal", 8, 9))
sketch4.addConstraint(Sketcher.Constraint("Equal", 9, 10))
sketch4.addConstraint(Sketcher.Constraint("Equal", 10, 11))
sketch4.addConstraint(Sketcher.Constraint("Equal", 11, 12))
sketch4.addConstraint(Sketcher.Constraint("Equal", 12, 13))
sketch4.addConstraint(Sketcher.Constraint("Equal", 13, 14))
sketch4.addConstraint(Sketcher.Constraint("Symmetric", 1, 3, 4, 3, -2))
sketch4.addConstraint(Sketcher.Constraint("Symmetric", 0, 3, 5, 3, -2))
sketch4.addConstraint(Sketcher.Constraint("Symmetric", 3, 3, 6, 3, -2))
sketch4.addConstraint(Sketcher.Constraint("Symmetric", 8, 3, 9, 3, -2))
sketch4.addConstraint(Sketcher.Constraint("Symmetric", 7, 3, 10, 3, -2))
sketch4.addConstraint(Sketcher.Constraint("Symmetric", 11, 3, 13, 3, -2))
sketch4.addConstraint(Sketcher.Constraint("Symmetric", 12, 3, 14, 3, -2))
sketch4.addConstraint(Sketcher.Constraint("Horizontal", 0, 3, 1, 3))
sketch4.addConstraint(Sketcher.Constraint("Horizontal", 7, 3, 8, 3))
sketch4.addConstraint(Sketcher.Constraint("Vertical", 11, 3, 12, 3))
sketch4.addConstraint(Sketcher.Constraint("Diameter", 0, 3.0))
sketch4.addConstraint(Sketcher.Constraint("DistanceX", 0, 3, -1, 1, 15.0))
sketch4.addConstraint(Sketcher.Constraint("DistanceY", 0, 3, -1, 1, 13.0))
sketch4.addConstraint(Sketcher.Constraint("DistanceX", 1, 3, -1, 1, 76.0))
sketch4.addConstraint(Sketcher.Constraint("DistanceX", -1, 1, 2, 3, 80.0))
sketch4.addConstraint(Sketcher.Constraint("DistanceY", -1, 1, 2, 3, 96.0))
sketch4.addConstraint(Sketcher.Constraint("DistanceY", -1, 1, 3, 3, 51.0))
sketch4.addConstraint(Sketcher.Constraint("DistanceX", 7, 3, -1, 1, 99.0))
sketch4.addConstraint(Sketcher.Constraint("DistanceY", -1, 1, 7, 3, 122.0))
sketch4.addConstraint(Sketcher.Constraint("DistanceX", 8, 3, -1, 1, 24.0))
sketch4.addConstraint(Sketcher.Constraint("DistanceX", 11, 3, -1, 1, 91.0))
sketch4.addConstraint(Sketcher.Constraint("DistanceY", 11, 3, -1, 1, 84.0))
sketch4.addConstraint(Sketcher.Constraint("DistanceY", -1, 1, 12, 3, 44.0))
sketch4.addConstraint(Sketcher.Constraint("DistanceX", 6, 3, 3, 3, 103.0))
pocket2 = body.newObject("PartDesign::Pocket", "Pocket001")
pocket2.Profile = sketch4
pocket2.Length = 6

sketch5 = body.newObject("Sketcher::SketchObject", "Sketch004")
sketch5.AttachmentSupport = (doc.getObject("XY_Plane"), [""])
sketch5.MapMode = "FlatFace"
sketch5.AttachmentOffset = App.Placement(V(0, 0, 6), App.Rotation())
sketch5.addGeometry(Part.LineSegment(V(-119, 119, 0), V(-119, -125, 0)), False)
sketch5.addGeometry(Part.LineSegment(V(-119, -125, 0), V(-109, -125, 0)), False)
sketch5.addGeometry(Part.LineSegment(V(-109, -125, 0), V(-109, 119, 0)), False)
sketch5.addGeometry(Part.LineSegment(V(-109, 119, 0), V(-119, 119, 0)), False)
sketch5.addGeometry(Part.LineSegment(V(109, 119, 0), V(109, -125, 0)), False)
sketch5.addGeometry(Part.LineSegment(V(109, -125, 0), V(119, -125, 0)), False)
sketch5.addGeometry(Part.LineSegment(V(119, -125, 0), V(119, 119, 0)), False)
sketch5.addGeometry(Part.LineSegment(V(119, 119, 0), V(109, 119, 0)), False)
sketch5.addConstraint(Sketcher.Constraint("Coincident", 0, 2, 1, 1))
sketch5.addConstraint(Sketcher.Constraint("Coincident", 1, 2, 2, 1))
sketch5.addConstraint(Sketcher.Constraint("Coincident", 2, 2, 3, 1))
sketch5.addConstraint(Sketcher.Constraint("Coincident", 3, 2, 0, 1))
sketch5.addConstraint(Sketcher.Constraint("Coincident", 4, 2, 5, 1))
sketch5.addConstraint(Sketcher.Constraint("Coincident", 5, 2, 6, 1))
sketch5.addConstraint(Sketcher.Constraint("Coincident", 6, 2, 7, 1))
sketch5.addConstraint(Sketcher.Constraint("Coincident", 7, 2, 4, 1))
sketch5.addConstraint(Sketcher.Constraint("Vertical", 0))
sketch5.addConstraint(Sketcher.Constraint("Horizontal", 1))
sketch5.addConstraint(Sketcher.Constraint("Vertical", 2))
sketch5.addConstraint(Sketcher.Constraint("Horizontal", 3))
sketch5.addConstraint(Sketcher.Constraint("Vertical", 4))
sketch5.addConstraint(Sketcher.Constraint("Horizontal", 5))
sketch5.addConstraint(Sketcher.Constraint("Vertical", 6))
sketch5.addConstraint(Sketcher.Constraint("Horizontal", 7))
sketch5.addConstraint(Sketcher.Constraint("Symmetric", 1, 2, 4, 2, -2))
sketch5.addConstraint(Sketcher.Constraint("Symmetric", 3, 2, 6, 2, -2))
sketch5.addConstraint(Sketcher.Constraint("DistanceX", 1, 1, 1, 2, 10.0))
sketch5.addConstraint(Sketcher.Constraint("DistanceY", 0, 2, 0, 1, 244.0))
sketch5.addConstraint(Sketcher.Constraint("DistanceX", 0, 2, -1, 1, 119.0))
sketch5.addConstraint(Sketcher.Constraint("DistanceY", 0, 2, -1, 1, 125.0))
pad3 = body.newObject("PartDesign::Pad", "Pad002")
pad3.Profile = sketch5
pad3.Length = 6
pad3.Reversed = True

sketch6 = body.newObject("Sketcher::SketchObject", "Sketch005")
sketch6.AttachmentSupport = (doc.getObject("XY_Plane"), [""])
sketch6.MapMode = "FlatFace"
sketch6.AttachmentOffset = App.Placement(V(0, 0, 6), App.Rotation())
sketch6.addGeometry(Part.LineSegment(V(89, -107, 0), V(89, -119, 0)), False)
sketch6.addGeometry(Part.LineSegment(V(89, -119, 0), V(109, -119, 0)), False)
sketch6.addGeometry(Part.LineSegment(V(109, -119, 0), V(109, -107, 0)), False)
sketch6.addGeometry(Part.LineSegment(V(109, -107, 0), V(89, -107, 0)), False)
sketch6.addGeometry(Part.LineSegment(V(-109, -107, 0), V(-109, -119, 0)), False)
sketch6.addGeometry(Part.LineSegment(V(-109, -119, 0), V(-89, -119, 0)), False)
sketch6.addGeometry(Part.LineSegment(V(-89, -119, 0), V(-89, -107, 0)), False)
sketch6.addGeometry(Part.LineSegment(V(-89, -107, 0), V(-109, -107, 0)), False)
sketch6.addConstraint(Sketcher.Constraint("Coincident", 0, 2, 1, 1))
sketch6.addConstraint(Sketcher.Constraint("Coincident", 1, 2, 2, 1))
sketch6.addConstraint(Sketcher.Constraint("Coincident", 2, 2, 3, 1))
sketch6.addConstraint(Sketcher.Constraint("Coincident", 3, 2, 0, 1))
sketch6.addConstraint(Sketcher.Constraint("Coincident", 4, 2, 5, 1))
sketch6.addConstraint(Sketcher.Constraint("Coincident", 5, 2, 6, 1))
sketch6.addConstraint(Sketcher.Constraint("Coincident", 6, 2, 7, 1))
sketch6.addConstraint(Sketcher.Constraint("Coincident", 7, 2, 4, 1))
sketch6.addConstraint(Sketcher.Constraint("Vertical", 0))
sketch6.addConstraint(Sketcher.Constraint("Horizontal", 1))
sketch6.addConstraint(Sketcher.Constraint("Vertical", 2))
sketch6.addConstraint(Sketcher.Constraint("Horizontal", 3))
sketch6.addConstraint(Sketcher.Constraint("Vertical", 4))
sketch6.addConstraint(Sketcher.Constraint("Horizontal", 5))
sketch6.addConstraint(Sketcher.Constraint("Vertical", 6))
sketch6.addConstraint(Sketcher.Constraint("Horizontal", 7))
sketch6.addConstraint(Sketcher.Constraint("Symmetric", 1, 2, 4, 2, -2))
sketch6.addConstraint(Sketcher.Constraint("Symmetric", 3, 2, 6, 2, -2))
sketch6.addConstraint(Sketcher.Constraint("DistanceX", 1, 1, 1, 2, 20.0))
sketch6.addConstraint(Sketcher.Constraint("DistanceY", 0, 2, 0, 1, 12.0))
sketch6.addConstraint(Sketcher.Constraint("DistanceX", -1, 1, 0, 2, 89.0))
sketch6.addConstraint(Sketcher.Constraint("DistanceY", 0, 2, -1, 1, 119.0))
pocket3 = body.newObject("PartDesign::Pocket", "Pocket002")
pocket3.Profile = sketch6
pocket3.Length = 6

sketch7 = body.newObject("Sketcher::SketchObject", "Sketch006")
sketch7.AttachmentSupport = (doc.getObject("XY_Plane"), [""])
sketch7.MapMode = "FlatFace"
sketch7.AttachmentOffset = App.Placement(V(0, 0, 6), App.Rotation())
sketch7.addGeometry(Part.Circle(V(-8, 100.5, 0), V(0, 0, 1), 1.2), False)
sketch7.addGeometry(Part.Circle(V(8, 100.5, 0), V(0, 0, 1), 1.2), False)
sketch7.addGeometry(Part.Circle(V(-8, 84.5, 0), V(0, 0, 1), 1.2), False)
sketch7.addGeometry(Part.Circle(V(8, 84.5, 0), V(0, 0, 1), 1.2), False)
sketch7.addConstraint(Sketcher.Constraint("Equal", 0, 1))
sketch7.addConstraint(Sketcher.Constraint("Equal", 1, 2))
sketch7.addConstraint(Sketcher.Constraint("Equal", 2, 3))
sketch7.addConstraint(Sketcher.Constraint("Symmetric", 0, 3, 1, 3, -2))
sketch7.addConstraint(Sketcher.Constraint("Symmetric", 2, 3, 3, 3, -2))
sketch7.addConstraint(Sketcher.Constraint("Vertical", 0, 3, 2, 3))
sketch7.addConstraint(Sketcher.Constraint("Diameter", 0, 2.35))
sketch7.addConstraint(Sketcher.Constraint("DistanceX", 0, 3, -1, 1, 8.0))
sketch7.addConstraint(Sketcher.Constraint("DistanceY", 2, 3, 0, 3, 16.0))
sketch7.addConstraint(Sketcher.Constraint("DistanceY", -1, 1, 0, 3, 100.5))
pocket4 = body.newObject("PartDesign::Pocket", "Pocket003")
pocket4.Profile = sketch7
pocket4.Type = "ThroughAll"

doc.recompute()
